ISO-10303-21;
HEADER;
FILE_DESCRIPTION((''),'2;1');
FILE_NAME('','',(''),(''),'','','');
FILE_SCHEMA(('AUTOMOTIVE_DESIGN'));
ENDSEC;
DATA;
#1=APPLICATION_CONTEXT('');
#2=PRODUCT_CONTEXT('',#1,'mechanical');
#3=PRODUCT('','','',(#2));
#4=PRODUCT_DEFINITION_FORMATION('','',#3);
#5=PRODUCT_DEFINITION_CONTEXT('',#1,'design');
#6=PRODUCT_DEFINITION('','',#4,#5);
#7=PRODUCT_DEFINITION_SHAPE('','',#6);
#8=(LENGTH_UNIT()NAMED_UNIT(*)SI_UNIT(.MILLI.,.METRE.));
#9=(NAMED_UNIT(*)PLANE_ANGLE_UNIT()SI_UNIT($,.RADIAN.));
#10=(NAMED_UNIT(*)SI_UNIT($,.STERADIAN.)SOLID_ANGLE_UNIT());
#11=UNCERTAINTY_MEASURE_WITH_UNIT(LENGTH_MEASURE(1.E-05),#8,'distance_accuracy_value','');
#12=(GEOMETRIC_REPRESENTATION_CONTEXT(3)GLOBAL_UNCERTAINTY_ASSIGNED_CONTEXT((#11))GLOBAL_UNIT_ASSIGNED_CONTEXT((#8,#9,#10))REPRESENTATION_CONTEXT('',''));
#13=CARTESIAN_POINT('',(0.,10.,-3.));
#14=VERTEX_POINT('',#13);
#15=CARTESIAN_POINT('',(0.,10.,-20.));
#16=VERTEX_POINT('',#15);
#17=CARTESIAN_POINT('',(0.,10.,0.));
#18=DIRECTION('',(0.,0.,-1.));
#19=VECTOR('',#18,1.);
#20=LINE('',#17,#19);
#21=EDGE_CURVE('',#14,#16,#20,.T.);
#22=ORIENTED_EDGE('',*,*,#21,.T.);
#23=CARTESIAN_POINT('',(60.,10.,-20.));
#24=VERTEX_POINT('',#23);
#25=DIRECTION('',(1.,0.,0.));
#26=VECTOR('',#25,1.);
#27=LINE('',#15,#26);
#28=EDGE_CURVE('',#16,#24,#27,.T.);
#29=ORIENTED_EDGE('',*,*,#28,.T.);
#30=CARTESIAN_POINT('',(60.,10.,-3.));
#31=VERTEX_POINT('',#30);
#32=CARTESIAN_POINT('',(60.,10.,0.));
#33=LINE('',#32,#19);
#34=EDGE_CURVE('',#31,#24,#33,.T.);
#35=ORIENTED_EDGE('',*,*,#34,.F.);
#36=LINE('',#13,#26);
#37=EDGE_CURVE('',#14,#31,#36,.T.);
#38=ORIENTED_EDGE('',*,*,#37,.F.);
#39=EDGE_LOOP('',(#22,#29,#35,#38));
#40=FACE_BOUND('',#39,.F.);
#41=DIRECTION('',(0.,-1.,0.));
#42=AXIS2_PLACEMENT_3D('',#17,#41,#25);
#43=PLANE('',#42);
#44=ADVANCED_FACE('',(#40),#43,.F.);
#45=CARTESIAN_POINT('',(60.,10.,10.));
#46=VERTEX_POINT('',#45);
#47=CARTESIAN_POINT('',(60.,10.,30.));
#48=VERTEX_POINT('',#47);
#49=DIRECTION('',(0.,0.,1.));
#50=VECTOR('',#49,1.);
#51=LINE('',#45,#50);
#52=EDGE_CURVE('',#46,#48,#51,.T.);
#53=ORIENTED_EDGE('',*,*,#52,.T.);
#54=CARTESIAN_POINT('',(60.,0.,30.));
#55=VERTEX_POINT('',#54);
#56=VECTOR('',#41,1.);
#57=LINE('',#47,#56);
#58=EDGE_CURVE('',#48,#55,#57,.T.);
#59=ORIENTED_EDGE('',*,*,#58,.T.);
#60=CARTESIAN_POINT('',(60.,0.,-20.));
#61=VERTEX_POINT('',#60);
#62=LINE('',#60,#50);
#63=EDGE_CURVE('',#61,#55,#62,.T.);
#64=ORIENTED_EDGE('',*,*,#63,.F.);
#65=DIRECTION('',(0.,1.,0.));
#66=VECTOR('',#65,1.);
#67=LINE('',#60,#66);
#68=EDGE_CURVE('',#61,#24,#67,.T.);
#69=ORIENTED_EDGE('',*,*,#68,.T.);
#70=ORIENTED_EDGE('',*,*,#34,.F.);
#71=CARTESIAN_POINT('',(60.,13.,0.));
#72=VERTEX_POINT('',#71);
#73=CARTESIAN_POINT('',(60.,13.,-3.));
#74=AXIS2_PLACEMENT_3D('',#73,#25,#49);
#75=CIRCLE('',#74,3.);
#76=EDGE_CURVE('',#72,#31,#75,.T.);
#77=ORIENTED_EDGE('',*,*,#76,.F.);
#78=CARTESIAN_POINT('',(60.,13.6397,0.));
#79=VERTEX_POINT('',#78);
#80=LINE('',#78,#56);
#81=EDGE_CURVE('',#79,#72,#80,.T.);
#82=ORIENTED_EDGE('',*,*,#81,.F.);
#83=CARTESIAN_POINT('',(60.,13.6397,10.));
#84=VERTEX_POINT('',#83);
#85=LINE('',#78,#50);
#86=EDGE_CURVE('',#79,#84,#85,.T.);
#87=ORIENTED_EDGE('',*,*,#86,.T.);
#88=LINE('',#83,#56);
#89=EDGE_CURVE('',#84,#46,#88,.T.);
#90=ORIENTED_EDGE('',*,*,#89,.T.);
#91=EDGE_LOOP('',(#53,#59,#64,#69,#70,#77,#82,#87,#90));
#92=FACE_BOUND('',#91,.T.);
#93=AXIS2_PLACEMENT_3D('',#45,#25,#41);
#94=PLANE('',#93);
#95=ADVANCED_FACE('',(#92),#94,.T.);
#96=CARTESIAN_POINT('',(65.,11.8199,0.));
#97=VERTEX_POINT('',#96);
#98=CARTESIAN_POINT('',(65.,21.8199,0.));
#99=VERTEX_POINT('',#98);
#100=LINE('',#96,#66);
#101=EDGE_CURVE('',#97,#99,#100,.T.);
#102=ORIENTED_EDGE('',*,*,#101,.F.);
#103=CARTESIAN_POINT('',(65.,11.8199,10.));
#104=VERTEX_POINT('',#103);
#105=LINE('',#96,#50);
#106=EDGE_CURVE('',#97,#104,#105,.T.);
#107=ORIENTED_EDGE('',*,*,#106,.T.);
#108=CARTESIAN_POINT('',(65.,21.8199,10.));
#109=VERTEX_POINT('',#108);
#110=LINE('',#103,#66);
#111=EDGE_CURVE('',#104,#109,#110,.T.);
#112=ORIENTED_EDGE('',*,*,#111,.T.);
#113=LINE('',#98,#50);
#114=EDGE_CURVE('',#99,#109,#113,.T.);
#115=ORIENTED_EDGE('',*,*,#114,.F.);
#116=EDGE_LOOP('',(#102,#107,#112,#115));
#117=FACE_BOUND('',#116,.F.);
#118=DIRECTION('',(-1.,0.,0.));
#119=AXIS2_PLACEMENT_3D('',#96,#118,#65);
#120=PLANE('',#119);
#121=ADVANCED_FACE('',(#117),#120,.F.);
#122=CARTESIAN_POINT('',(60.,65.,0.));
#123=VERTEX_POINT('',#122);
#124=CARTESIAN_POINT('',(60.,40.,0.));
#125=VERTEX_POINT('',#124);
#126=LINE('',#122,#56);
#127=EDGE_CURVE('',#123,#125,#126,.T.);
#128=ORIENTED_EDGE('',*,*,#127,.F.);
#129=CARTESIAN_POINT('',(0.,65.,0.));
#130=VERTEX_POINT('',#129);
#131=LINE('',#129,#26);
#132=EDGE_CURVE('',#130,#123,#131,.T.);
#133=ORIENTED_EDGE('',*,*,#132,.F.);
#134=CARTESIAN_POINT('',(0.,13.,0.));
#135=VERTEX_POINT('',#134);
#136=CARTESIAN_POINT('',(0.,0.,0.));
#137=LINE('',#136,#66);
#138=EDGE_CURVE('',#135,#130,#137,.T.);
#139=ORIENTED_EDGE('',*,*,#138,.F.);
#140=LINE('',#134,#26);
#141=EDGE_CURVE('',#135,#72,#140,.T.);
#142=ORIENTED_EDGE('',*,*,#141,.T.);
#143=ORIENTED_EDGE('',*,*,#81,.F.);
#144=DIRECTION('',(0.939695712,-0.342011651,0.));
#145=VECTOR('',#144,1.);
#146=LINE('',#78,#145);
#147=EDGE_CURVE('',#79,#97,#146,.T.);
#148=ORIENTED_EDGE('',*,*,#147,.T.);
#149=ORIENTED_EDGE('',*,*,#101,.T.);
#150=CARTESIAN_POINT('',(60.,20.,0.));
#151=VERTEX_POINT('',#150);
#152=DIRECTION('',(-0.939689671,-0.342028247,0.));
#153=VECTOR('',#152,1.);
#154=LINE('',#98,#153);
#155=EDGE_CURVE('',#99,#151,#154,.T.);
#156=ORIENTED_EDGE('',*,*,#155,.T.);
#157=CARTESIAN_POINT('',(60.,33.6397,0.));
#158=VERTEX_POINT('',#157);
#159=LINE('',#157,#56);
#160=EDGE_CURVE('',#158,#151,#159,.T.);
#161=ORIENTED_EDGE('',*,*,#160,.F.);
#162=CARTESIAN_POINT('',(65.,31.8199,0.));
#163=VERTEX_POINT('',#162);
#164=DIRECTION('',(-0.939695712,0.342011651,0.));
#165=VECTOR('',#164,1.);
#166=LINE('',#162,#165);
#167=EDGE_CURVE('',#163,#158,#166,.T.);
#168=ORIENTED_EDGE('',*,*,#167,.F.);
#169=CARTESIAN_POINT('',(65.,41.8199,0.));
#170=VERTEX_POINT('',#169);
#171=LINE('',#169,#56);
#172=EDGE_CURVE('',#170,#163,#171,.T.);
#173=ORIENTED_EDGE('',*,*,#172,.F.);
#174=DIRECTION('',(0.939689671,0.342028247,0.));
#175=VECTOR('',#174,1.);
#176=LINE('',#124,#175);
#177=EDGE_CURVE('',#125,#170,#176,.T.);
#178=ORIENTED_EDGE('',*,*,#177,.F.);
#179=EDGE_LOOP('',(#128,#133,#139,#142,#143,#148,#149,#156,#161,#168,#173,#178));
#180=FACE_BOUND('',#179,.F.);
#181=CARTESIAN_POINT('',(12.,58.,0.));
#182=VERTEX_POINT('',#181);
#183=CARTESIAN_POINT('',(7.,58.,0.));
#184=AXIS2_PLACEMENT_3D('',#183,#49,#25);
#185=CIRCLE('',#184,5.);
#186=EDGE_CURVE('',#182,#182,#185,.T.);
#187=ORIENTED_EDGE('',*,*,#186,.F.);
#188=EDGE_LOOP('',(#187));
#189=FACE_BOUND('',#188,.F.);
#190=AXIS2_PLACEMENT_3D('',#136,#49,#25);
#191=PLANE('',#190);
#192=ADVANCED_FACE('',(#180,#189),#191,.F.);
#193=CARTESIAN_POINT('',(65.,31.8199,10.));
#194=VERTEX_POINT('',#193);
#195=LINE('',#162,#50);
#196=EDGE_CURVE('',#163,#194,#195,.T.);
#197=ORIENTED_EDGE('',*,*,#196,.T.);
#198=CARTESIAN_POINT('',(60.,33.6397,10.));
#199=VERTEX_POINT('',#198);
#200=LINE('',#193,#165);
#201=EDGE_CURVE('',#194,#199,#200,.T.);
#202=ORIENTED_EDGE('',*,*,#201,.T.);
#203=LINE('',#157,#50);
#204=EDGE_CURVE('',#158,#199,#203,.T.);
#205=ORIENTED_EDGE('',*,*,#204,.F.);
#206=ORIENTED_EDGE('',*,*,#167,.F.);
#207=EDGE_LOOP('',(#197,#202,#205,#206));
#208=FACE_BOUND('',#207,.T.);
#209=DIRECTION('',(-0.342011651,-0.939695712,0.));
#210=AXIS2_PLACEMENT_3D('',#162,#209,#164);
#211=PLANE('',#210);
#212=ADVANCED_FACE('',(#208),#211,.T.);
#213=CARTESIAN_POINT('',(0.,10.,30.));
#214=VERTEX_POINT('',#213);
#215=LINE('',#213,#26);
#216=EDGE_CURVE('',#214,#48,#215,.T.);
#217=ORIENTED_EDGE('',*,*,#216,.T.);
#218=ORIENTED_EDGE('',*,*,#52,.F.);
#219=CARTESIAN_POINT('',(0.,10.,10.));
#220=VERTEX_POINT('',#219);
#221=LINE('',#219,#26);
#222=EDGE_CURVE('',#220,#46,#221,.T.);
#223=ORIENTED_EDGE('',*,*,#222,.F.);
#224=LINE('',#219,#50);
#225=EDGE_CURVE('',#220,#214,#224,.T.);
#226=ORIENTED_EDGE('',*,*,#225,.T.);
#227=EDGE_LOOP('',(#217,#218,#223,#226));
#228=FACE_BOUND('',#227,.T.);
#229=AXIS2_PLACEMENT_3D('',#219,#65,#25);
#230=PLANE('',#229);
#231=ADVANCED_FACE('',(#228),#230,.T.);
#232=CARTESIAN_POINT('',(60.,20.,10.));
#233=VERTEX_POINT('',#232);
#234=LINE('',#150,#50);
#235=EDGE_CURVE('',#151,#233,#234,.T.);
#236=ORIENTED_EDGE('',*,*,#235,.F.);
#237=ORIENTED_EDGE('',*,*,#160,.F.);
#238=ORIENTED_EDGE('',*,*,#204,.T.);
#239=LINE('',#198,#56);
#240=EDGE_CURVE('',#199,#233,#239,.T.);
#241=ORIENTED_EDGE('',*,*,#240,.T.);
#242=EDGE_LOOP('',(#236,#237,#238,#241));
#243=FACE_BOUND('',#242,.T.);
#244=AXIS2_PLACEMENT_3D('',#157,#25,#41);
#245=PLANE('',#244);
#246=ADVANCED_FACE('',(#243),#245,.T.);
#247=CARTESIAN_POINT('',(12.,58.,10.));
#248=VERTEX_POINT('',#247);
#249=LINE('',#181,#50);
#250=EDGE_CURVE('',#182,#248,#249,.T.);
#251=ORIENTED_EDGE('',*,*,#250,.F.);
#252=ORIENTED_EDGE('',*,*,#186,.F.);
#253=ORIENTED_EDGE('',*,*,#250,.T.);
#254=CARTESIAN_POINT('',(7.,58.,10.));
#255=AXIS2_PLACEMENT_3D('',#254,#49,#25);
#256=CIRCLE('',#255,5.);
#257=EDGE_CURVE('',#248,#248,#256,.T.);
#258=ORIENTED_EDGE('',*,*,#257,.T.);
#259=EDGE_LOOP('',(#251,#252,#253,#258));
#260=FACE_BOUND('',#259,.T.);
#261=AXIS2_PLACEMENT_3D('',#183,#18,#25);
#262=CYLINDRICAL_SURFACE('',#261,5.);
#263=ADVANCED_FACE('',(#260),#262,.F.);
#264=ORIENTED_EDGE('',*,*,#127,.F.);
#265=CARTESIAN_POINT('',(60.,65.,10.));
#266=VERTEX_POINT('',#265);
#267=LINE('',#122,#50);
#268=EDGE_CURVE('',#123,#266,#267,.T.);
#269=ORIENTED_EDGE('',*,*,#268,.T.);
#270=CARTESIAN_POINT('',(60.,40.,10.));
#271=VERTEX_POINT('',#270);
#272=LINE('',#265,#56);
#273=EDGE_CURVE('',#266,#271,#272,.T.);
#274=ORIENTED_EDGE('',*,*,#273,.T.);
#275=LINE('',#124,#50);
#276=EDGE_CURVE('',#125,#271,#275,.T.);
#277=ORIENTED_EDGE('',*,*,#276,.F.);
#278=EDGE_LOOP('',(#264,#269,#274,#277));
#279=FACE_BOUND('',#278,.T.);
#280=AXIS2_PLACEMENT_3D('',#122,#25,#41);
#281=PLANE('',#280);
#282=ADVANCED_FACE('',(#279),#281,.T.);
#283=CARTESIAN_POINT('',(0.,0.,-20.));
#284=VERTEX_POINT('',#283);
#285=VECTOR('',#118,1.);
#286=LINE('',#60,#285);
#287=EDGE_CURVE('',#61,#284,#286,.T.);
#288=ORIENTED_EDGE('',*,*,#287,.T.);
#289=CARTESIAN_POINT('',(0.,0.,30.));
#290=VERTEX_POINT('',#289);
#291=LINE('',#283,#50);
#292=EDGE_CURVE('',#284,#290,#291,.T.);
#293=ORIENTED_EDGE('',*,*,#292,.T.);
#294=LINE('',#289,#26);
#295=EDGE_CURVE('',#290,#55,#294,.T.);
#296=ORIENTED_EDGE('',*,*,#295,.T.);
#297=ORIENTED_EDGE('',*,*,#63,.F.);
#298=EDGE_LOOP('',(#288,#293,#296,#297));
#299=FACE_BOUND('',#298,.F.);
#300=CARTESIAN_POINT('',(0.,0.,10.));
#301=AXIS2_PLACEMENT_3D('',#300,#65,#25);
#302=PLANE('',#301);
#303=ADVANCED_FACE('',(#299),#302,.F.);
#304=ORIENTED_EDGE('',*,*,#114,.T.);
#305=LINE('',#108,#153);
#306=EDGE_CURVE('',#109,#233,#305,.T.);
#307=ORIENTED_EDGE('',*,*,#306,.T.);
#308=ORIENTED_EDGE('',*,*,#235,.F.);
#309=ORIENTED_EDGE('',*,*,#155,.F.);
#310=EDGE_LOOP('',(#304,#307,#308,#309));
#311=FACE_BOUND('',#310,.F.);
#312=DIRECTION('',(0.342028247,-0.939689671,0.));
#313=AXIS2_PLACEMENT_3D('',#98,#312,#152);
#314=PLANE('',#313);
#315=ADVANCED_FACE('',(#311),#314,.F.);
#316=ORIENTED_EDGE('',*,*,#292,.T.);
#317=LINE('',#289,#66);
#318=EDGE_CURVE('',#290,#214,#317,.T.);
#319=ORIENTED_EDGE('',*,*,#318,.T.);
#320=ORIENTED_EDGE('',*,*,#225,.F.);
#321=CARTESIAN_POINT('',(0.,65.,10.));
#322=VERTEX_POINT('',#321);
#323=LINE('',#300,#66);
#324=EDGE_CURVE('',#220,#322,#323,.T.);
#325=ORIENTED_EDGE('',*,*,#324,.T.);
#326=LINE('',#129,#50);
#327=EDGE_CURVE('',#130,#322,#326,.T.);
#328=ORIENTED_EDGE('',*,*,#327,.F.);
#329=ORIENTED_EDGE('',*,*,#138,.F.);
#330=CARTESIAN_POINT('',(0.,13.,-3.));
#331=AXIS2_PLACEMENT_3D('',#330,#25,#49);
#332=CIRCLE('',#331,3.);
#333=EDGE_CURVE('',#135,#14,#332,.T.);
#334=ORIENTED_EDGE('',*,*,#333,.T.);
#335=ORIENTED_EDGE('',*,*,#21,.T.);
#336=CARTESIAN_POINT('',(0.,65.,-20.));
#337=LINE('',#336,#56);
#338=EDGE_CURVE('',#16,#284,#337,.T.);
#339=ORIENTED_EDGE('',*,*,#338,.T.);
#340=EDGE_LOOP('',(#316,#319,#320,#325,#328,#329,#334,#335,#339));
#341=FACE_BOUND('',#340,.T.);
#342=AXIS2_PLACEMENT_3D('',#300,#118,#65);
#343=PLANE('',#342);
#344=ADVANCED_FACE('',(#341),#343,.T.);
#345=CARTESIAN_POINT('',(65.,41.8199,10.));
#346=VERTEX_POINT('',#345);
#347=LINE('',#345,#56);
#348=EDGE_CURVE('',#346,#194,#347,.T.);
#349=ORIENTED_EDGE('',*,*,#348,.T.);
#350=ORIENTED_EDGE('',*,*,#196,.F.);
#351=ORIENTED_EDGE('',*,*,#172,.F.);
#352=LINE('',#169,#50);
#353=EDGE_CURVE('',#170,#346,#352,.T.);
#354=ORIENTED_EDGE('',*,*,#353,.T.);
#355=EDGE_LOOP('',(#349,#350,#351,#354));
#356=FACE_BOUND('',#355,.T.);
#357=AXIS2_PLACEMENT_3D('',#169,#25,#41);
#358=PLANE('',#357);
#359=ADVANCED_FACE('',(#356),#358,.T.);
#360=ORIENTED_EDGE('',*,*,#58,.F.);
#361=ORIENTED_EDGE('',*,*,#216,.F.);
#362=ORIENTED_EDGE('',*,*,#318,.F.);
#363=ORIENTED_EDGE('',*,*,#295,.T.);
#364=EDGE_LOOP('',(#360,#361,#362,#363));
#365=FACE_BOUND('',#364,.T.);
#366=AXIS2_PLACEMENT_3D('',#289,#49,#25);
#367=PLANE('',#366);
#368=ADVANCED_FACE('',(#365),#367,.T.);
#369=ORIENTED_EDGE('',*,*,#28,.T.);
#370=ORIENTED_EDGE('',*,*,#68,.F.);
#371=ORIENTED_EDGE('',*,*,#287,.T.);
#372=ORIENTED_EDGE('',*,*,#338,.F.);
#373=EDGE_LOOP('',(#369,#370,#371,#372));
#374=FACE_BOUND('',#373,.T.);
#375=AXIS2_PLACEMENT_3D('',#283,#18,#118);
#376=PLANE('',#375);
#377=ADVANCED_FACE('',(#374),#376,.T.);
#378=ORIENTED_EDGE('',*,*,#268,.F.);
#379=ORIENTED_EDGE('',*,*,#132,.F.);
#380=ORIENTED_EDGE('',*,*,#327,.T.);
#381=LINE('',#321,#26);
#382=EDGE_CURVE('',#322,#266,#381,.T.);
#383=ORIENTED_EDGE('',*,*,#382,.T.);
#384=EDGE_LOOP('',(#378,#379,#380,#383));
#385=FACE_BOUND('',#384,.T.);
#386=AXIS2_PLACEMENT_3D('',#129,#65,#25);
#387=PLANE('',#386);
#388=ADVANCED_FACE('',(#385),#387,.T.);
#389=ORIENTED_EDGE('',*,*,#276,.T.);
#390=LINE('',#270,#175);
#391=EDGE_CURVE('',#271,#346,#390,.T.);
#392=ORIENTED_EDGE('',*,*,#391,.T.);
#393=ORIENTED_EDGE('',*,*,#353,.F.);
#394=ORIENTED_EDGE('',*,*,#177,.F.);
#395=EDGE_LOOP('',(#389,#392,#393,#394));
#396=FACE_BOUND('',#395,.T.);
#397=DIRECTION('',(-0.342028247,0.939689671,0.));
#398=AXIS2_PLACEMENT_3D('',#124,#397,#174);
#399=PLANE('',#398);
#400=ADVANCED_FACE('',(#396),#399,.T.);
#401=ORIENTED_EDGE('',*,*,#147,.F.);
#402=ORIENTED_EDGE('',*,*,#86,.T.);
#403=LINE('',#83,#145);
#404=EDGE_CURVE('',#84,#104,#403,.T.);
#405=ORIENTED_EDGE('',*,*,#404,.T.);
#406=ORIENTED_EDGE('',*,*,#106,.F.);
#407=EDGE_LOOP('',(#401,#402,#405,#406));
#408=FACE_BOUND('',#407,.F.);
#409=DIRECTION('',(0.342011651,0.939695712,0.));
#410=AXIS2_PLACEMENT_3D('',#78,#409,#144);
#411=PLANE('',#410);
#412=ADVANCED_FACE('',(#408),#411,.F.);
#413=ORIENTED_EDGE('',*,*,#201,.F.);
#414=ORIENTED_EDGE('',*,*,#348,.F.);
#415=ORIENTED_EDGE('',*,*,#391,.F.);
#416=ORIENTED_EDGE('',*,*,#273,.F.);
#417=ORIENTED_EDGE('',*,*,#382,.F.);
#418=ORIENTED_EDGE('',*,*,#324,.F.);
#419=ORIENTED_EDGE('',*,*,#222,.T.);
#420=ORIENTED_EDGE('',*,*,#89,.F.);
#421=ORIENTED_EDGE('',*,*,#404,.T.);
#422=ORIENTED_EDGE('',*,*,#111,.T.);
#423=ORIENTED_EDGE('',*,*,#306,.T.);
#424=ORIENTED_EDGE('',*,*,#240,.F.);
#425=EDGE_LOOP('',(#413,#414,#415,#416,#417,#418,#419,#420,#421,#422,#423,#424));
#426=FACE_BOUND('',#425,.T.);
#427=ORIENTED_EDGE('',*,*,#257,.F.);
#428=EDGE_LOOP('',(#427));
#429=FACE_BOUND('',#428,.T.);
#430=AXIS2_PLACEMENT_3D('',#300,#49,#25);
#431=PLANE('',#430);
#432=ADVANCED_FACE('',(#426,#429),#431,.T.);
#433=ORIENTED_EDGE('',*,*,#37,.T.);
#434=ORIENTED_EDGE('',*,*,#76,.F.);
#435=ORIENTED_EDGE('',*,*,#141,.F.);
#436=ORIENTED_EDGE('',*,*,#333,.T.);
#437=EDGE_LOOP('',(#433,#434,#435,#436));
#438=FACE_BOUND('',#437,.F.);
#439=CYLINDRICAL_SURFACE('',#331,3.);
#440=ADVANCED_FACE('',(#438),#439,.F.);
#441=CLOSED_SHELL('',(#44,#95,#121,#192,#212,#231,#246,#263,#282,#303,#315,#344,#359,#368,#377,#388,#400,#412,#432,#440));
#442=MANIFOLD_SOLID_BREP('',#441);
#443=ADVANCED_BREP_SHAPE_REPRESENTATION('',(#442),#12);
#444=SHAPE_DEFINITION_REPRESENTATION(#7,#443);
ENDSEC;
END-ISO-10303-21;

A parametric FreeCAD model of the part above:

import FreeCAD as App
import Part
import Sketcher
Q = App.Units.Quantity


def edges_at(feature, points):
    """Names of the edges that pass closest to the given points."""
    edges = feature.Shape.Edges
    near = lambda p: min(range(len(edges)), key=lambda i: edges[i].distToShape(Part.Vertex(*p))[0])
    return sorted({f"Edge{near(p) + 1}" for p in points})


def add_polygon(sketch, points):
    """Adds a closed chain of lines whose ends are joined by coincident constraints."""
    first, n = sketch.GeometryCount, len(points)
    for a, b in zip(points, points[1:] + points[:1]):
        sketch.addGeometry(Part.LineSegment(App.Vector(*a, 0), App.Vector(*b, 0)), False)
    for i in range(n):
        sketch.addConstraint(Sketcher.Constraint("Coincident", first + i, 2, first + (i + 1) % n, 1))

doc = App.newDocument("Part")
body = doc.addObject("PartDesign::Body", "Body")

# Sketch on XY plane
sketch1 = body.newObject("Sketcher::SketchObject", "Sketch")
sketch1.AttachmentSupport = (doc.getObject("XY_Plane"), [""])
sketch1.MapMode = "FlatFace"
add_polygon(sketch1, [(0, 65), (0, 0), (60, 0), (60, 14), (65, 12), (65, 22), (60, 20), (60, 34), (65, 32), (65, 42), (60, 40), (60, 65)])  # lines 0-11
sketch1.addGeometry(Part.Circle(App.Vector(7, 58, 0), App.Vector(0, 0, 1), 5), False)  # 12
sketch1.addConstraint(Sketcher.Constraint("Vertical", 0))
sketch1.addConstraint(Sketcher.Constraint("Horizontal", 1))
sketch1.addConstraint(Sketcher.Constraint("Vertical", 2))
sketch1.addConstraint(Sketcher.Constraint("Vertical", 4))
sketch1.addConstraint(Sketcher.Constraint("Vertical", 6))
sketch1.addConstraint(Sketcher.Constraint("Vertical", 8))
sketch1.addConstraint(Sketcher.Constraint("Vertical", 10))
sketch1.addConstraint(Sketcher.Constraint("Horizontal", 11))
sketch1.addConstraint(Sketcher.Constraint("Coincident", 0, 2, -1, 1))
sketch1.addConstraint(Sketcher.Constraint("Parallel", 3, 7))
sketch1.addConstraint(Sketcher.Constraint("Parallel", 5, 9))
sketch1.addConstraint(Sketcher.Constraint("Vertical", 2, 2, 5, 2))
sketch1.addConstraint(Sketcher.Constraint("Vertical", 4, 2, 7, 2))
sketch1.addConstraint(Sketcher.Constraint("Vertical", 6, 2, 9, 2))
sketch1.addConstraint(Sketcher.Constraint("Equal", 2, 6))
sketch1.addConstraint(Sketcher.Constraint("Equal", 4, 8))
sketch1.addConstraint(Sketcher.Constraint("Equal", 3, 5))
sketch1.addConstraint(Sketcher.Constraint("Diameter", 12, Q("10 mm")))
sketch1.addConstraint(Sketcher.Constraint("DistanceX", 1, 1, 1, 2, Q("60 mm")))
sketch1.addConstraint(Sketcher.Constraint("DistanceY", 0, 2, 0, 1, Q("65 mm")))
sketch1.addConstraint(Sketcher.Constraint("DistanceY", 4, 1, 4, 2, Q("10 mm")))
sketch1.addConstraint(Sketcher.Constraint("Angle", 3, Q("-19.9995 deg")))
sketch1.addConstraint(Sketcher.Constraint("DistanceX", -1, 1, 12, 3, Q("7 mm")))
sketch1.addConstraint(Sketcher.Constraint("DistanceX", -1, 1, 3, 2, Q("65 mm")))
sketch1.addConstraint(Sketcher.Constraint("DistanceY", -1, 1, 5, 2, Q("20 mm")))
sketch1.addConstraint(Sketcher.Constraint("DistanceY", 12, 3, 11, 2, Q("7 mm")))
pad1 = body.newObject("PartDesign::Pad", "Pad")
pad1.Profile = sketch1
pad1.Length = 10

# Sketch on XY plane
sketch2 = body.newObject("Sketcher::SketchObject", "Sketch001")
sketch2.AttachmentSupport = (doc.getObject("XY_Plane"), [""])
sketch2.MapMode = "FlatFace"
add_polygon(sketch2, [(0, 0), (0, 10), (60, 10), (60, 0)])  # lines 0-3
sketch2.addConstraint(Sketcher.Constraint("Vertical", 0))
sketch2.addConstraint(Sketcher.Constraint("Horizontal", 1))
sketch2.addConstraint(Sketcher.Constraint("Vertical", 2))
sketch2.addConstraint(Sketcher.Constraint("Horizontal", 3))
sketch2.addConstraint(Sketcher.Constraint("Coincident", 3, 2, -1, 1))
sketch2.addConstraint(Sketcher.Constraint("DistanceY", 0, 1, 0, 2, Q("10 mm")))
sketch2.addConstraint(Sketcher.Constraint("DistanceX", 1, 1, 1, 2, Q("60 mm")))
pad2 = body.newObject("PartDesign::Pad", "Pad001")
pad2.Profile = sketch2
pad2.Length = 20
pad2.Reversed = True
doc.recompute()

fillet = body.newObject("PartDesign::Fillet", "Fillet")
fillet.Base = (pad2, edges_at(pad2, [(30, 10, 0)]))
fillet.Radius = 3

# Sketch on XY plane
sketch3 = body.newObject("Sketcher::SketchObject", "Sketch002")
sketch3.AttachmentSupport = (doc.getObject("XY_Plane"), [""])
sketch3.MapMode = "FlatFace"
sketch3.AttachmentOffset = App.Placement(App.Vector(0, 0, 10), App.Rotation())
add_polygon(sketch3, [(0, 10), (0, 0), (60, 0), (60, 10)])  # lines 0-3
sketch3.addConstraint(Sketcher.Constraint("Vertical", 0))
sketch3.addConstraint(Sketcher.Constraint("Horizontal", 1))
sketch3.addConstraint(Sketcher.Constraint("Vertical", 2))
sketch3.addConstraint(Sketcher.Constraint("Horizontal", 3))
sketch3.addConstraint(Sketcher.Constraint("Coincident", 0, 2, -1, 1))
sketch3.addConstraint(Sketcher.Constraint("DistanceX", 1, 1, 1, 2, Q("60 mm")))
sketch3.addConstraint(Sketcher.Constraint("DistanceY", 0, 2, 0, 1, Q("10 mm")))
pad3 = body.newObject("PartDesign::Pad", "Pad002")
pad3.Profile = sketch3
pad3.Length = 20

doc.recompute()
